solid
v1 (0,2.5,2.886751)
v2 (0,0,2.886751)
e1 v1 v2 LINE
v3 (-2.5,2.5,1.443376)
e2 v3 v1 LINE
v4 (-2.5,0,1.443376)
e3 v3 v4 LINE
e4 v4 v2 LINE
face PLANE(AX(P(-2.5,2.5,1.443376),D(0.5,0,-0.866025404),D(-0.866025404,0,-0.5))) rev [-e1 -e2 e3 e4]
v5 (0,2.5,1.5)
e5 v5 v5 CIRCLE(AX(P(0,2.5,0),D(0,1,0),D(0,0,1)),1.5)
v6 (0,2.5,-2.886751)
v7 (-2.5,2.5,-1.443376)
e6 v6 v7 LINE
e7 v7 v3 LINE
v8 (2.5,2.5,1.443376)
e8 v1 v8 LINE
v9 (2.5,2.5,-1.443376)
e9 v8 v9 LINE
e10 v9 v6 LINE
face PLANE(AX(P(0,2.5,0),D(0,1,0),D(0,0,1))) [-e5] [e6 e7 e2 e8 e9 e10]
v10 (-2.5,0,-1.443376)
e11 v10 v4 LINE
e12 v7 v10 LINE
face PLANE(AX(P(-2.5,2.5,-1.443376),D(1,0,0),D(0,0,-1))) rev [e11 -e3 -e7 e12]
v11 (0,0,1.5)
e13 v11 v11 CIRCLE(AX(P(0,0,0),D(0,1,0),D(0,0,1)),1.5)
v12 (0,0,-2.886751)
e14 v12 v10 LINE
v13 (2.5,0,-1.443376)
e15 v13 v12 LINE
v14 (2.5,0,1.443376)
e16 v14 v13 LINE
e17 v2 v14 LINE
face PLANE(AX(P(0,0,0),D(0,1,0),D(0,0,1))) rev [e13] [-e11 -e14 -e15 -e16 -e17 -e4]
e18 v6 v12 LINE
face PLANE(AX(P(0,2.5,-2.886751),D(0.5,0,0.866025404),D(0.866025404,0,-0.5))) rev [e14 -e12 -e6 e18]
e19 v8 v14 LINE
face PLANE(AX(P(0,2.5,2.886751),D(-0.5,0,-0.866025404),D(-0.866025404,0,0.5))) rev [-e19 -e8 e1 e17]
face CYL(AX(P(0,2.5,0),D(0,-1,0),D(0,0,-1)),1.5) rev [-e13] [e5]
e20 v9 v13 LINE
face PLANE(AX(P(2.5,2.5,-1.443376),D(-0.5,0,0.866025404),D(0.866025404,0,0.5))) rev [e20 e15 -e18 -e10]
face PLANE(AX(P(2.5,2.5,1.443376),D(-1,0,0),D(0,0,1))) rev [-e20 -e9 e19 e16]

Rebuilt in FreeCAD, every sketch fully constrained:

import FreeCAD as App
import Part
import Sketcher
from FreeCAD import Vector
Q = App.Units.Quantity


def add_polygon(sketch, points):
    """Adds a closed chain of lines whose ends are joined by coincident constraints."""
    first, n = sketch.GeometryCount, len(points)
    for a, b in zip(points, points[1:] + points[:1]):
        sketch.addGeometry(Part.LineSegment(App.Vector(*a, 0), App.Vector(*b, 0)), False)
    for i in range(n):
        sketch.addConstraint(Sketcher.Constraint("Coincident", first + i, 2, first + (i + 1) % n, 1))

doc = App.newDocument("Part")
body = doc.addObject("PartDesign::Body", "Body")

# Sketch on XZ plane
sketch1 = body.newObject("Sketcher::SketchObject", "Sketch")
sketch1.AttachmentSupport = (doc.getObject("XZ_Plane"), [""])
sketch1.MapMode = "FlatFace"
add_polygon(sketch1, [(0, -2.9), (-2.5, -1.4), (-2.5, 1.4), (0, 2.9), (2.5, 1.4), (2.5, -1.4)])  # lines 0-5
sketch1.addGeometry(Part.Circle(Vector(0, 0, 0), Vector(0, 0, 1), 1.5), False)  # 6
sketch1.addConstraint([
    Sketcher.Constraint("Vertical", 1),
    Sketcher.Constraint("Vertical", 4),
    Sketcher.Constraint("Coincident", 6, 3, -1, 1),
    Sketcher.Constraint("Symmetric", 0, 2, 3, 2, -1, 1),
    Sketcher.Constraint("Symmetric", 2, 2, 5, 2, -1, 1),
    Sketcher.Constraint("PointOnObject", 2, 2, -2),
    Sketcher.Constraint("Parallel", 2, 5),
    Sketcher.Constraint("Horizontal", 1, 2, 3, 2),
    Sketcher.Constraint("Diameter", 6, 3.0),
    Sketcher.Constraint("Angle", 0, Q("150 deg")),
    Sketcher.Constraint("DistanceX", 1, 2, 3, 2, 5.0),
    Sketcher.Constraint("DistanceY", 1, 1, 1, 2, 2.886751),
])
pad1 = body.newObject("PartDesign::Pad", "Pad")
pad1.Profile = sketch1
pad1.Length = 2.5
pad1.Reversed = True

doc.recompute()
